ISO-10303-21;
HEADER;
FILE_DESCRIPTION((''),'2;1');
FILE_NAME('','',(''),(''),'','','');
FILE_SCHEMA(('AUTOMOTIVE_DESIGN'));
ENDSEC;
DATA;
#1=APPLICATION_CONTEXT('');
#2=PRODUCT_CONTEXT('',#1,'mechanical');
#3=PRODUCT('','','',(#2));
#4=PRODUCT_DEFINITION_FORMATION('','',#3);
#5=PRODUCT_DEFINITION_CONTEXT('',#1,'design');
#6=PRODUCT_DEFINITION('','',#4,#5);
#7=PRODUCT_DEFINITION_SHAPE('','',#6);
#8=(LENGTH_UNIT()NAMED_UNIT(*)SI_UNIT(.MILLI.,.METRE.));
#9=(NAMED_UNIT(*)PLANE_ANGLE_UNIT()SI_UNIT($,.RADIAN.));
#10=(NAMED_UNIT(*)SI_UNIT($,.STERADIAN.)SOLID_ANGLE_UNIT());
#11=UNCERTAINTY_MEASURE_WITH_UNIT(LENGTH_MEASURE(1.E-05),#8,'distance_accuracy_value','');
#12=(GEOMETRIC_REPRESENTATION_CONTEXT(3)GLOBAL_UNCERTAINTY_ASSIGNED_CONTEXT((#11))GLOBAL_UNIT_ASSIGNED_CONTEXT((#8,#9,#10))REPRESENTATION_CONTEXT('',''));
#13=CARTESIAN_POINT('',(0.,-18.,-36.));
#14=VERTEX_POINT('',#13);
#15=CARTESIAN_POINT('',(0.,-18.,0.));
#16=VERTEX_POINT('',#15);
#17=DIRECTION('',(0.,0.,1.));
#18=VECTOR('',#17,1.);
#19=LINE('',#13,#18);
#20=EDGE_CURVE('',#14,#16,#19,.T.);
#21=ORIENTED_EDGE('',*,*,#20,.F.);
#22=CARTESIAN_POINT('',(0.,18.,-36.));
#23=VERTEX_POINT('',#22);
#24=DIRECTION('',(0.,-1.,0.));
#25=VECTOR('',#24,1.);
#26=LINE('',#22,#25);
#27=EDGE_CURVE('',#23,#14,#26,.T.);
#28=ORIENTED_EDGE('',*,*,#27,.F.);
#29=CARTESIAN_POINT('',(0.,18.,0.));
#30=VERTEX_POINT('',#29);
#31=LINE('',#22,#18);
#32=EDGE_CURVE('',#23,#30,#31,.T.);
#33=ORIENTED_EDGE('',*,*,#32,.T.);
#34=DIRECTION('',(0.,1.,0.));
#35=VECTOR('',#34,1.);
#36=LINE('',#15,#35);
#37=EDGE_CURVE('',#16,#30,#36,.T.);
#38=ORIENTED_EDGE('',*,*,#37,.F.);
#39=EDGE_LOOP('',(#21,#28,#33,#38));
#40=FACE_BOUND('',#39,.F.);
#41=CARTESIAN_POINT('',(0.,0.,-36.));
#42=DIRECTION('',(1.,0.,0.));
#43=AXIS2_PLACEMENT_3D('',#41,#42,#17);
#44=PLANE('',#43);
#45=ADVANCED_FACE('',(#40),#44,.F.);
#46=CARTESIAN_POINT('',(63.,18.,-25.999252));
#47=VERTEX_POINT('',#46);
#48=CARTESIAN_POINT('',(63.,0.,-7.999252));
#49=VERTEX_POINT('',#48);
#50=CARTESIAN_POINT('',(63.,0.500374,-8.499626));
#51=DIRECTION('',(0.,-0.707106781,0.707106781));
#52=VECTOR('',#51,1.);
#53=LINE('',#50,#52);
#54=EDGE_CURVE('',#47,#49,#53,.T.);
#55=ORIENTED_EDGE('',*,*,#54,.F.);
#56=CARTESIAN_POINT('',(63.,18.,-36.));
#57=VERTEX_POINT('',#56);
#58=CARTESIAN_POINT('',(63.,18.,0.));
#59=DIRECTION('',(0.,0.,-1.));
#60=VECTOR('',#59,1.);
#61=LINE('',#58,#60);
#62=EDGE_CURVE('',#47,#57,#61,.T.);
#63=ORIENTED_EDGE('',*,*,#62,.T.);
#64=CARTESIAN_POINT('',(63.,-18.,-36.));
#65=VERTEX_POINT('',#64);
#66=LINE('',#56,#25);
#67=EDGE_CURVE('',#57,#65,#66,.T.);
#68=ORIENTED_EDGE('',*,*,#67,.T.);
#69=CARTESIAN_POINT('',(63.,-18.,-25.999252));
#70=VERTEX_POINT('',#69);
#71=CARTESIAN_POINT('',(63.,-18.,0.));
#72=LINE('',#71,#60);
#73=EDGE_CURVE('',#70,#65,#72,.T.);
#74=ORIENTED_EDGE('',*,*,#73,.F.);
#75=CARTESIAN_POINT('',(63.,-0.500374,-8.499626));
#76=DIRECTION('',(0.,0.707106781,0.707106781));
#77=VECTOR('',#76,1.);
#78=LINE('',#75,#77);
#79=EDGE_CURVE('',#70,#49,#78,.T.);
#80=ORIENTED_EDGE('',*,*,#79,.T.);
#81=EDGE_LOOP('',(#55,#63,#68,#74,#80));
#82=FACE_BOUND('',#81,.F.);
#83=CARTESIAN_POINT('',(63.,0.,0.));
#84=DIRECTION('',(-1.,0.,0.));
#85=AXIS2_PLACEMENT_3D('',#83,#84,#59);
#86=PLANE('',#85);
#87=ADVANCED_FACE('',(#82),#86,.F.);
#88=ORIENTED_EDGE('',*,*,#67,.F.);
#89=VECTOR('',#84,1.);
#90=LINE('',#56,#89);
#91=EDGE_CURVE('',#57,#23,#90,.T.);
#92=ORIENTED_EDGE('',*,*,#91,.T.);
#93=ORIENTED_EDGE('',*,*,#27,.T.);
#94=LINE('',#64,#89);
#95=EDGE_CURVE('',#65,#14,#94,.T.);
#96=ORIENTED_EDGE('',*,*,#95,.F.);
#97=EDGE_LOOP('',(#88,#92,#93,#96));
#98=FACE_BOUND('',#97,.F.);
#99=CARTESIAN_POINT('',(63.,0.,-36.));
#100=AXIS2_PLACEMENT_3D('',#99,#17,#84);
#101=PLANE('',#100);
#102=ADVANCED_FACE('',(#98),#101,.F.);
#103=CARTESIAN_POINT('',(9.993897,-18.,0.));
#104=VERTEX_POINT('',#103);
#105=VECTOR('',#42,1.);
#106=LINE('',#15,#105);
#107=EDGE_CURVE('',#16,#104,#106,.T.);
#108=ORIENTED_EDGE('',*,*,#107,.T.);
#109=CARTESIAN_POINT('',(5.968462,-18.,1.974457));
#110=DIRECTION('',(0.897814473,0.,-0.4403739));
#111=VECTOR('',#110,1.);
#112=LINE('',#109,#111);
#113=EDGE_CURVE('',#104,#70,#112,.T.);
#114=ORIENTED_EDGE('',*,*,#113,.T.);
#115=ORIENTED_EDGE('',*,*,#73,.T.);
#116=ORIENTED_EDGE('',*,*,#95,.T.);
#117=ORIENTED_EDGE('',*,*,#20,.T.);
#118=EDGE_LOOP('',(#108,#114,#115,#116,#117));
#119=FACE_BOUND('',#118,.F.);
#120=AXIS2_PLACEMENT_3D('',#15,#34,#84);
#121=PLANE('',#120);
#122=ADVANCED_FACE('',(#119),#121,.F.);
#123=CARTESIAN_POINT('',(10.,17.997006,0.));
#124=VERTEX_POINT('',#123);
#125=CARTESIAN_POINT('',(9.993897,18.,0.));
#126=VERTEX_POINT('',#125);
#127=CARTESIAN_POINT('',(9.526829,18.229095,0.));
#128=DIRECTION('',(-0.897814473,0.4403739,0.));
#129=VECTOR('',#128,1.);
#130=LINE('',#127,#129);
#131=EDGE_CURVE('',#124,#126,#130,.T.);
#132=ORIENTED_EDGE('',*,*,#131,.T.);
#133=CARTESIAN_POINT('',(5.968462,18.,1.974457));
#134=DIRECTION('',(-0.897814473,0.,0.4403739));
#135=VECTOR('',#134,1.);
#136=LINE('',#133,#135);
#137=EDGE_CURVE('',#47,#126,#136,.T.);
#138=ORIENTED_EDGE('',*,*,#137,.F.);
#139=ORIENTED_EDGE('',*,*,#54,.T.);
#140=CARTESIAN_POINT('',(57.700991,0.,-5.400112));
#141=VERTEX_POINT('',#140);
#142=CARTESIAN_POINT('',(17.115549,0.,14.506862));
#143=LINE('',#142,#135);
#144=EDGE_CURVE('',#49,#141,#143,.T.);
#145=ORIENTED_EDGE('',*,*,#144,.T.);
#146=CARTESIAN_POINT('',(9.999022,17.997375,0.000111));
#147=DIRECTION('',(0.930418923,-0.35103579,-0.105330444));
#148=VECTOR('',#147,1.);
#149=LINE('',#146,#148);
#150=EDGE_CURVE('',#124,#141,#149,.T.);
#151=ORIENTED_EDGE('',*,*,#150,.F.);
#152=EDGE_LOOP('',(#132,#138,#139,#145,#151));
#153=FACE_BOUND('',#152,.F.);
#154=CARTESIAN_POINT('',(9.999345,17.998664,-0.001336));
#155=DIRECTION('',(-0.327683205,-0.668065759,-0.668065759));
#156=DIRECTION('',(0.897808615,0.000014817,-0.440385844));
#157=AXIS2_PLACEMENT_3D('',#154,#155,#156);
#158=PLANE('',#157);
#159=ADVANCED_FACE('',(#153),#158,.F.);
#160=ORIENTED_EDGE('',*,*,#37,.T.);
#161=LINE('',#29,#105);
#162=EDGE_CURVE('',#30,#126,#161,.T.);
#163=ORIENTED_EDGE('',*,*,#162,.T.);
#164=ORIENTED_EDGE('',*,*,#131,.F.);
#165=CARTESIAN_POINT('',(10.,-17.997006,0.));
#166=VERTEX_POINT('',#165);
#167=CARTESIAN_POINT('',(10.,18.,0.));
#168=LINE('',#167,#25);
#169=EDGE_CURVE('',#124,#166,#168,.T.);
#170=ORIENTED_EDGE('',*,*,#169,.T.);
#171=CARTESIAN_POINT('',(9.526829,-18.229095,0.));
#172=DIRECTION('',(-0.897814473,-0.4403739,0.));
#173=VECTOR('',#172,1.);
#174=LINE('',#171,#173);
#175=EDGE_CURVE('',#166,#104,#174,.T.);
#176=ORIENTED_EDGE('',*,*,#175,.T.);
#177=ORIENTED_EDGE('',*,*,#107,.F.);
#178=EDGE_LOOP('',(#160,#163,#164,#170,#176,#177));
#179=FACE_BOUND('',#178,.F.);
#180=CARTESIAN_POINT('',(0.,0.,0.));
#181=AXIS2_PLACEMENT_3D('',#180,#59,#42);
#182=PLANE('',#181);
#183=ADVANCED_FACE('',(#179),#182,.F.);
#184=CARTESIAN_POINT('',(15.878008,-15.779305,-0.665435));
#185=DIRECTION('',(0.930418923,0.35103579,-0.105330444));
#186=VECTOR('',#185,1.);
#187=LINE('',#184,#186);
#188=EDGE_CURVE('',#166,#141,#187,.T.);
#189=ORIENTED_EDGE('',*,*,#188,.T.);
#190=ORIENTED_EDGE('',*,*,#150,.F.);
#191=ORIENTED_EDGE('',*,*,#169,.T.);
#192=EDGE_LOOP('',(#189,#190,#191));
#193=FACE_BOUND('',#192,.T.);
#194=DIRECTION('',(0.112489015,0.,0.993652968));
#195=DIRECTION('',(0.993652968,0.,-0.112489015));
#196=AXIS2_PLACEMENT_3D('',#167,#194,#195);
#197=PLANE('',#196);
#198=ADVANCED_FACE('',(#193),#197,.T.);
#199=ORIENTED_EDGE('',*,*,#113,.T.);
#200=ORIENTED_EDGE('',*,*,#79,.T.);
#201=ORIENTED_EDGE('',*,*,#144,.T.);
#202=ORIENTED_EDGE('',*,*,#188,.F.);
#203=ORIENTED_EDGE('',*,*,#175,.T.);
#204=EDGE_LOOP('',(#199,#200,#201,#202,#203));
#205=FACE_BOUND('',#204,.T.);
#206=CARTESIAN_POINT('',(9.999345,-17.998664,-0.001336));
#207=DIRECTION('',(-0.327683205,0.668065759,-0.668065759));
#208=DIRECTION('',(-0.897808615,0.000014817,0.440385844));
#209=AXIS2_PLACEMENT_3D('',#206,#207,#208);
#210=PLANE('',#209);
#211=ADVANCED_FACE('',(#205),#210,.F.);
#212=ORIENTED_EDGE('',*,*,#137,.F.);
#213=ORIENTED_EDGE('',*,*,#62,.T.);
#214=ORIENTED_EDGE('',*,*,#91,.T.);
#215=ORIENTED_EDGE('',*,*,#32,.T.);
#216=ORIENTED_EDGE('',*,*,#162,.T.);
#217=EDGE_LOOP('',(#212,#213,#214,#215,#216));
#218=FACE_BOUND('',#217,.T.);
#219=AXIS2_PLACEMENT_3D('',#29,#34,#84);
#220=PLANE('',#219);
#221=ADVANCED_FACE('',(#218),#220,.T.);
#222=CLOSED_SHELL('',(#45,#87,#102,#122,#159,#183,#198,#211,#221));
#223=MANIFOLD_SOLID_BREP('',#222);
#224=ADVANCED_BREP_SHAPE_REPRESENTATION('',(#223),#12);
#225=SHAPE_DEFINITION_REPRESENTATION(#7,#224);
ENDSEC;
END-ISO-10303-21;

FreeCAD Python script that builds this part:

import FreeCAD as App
import Part
import Sketcher
from FreeCAD import Vector

doc = App.newDocument("Part")
body = doc.addObject("PartDesign::Body", "Body")

# Sketch on XZ plane
sketch1 = doc.addObject("Sketcher::SketchObject", "Sketch")
body.addObject(sketch1)
sketch1.AttachmentSupport = (doc.XZ_Plane, [""])
sketch1.MapMode = "FlatFace"
sketch1.addGeometry([
    Part.LineSegment(Vector(0, -36, 0), Vector(0, 0, 0)),
    Part.LineSegment(Vector(0, 0, 0), Vector(63, 0, 0)),
    Part.LineSegment(Vector(63, 0, 0), Vector(63, -36, 0)),
    Part.LineSegment(Vector(63, -36, 0), Vector(0, -36, 0)),
], False)
sketch1.addConstraint([
    Sketcher.Constraint("Coincident", 0, 2, 1, 1),
    Sketcher.Constraint("Coincident", 1, 2, 2, 1),
    Sketcher.Constraint("Coincident", 2, 2, 3, 1),
    Sketcher.Constraint("Coincident", 3, 2, 0, 1),
    Sketcher.Constraint("Vertical", 0),
    Sketcher.Constraint("Horizontal", 1),
    Sketcher.Constraint("Vertical", 2),
    Sketcher.Constraint("Horizontal", 3),
    Sketcher.Constraint("Coincident", 0, 2, -1, 1),
    Sketcher.Constraint("DistanceX", 1, 1, 1, 2, 63.0),
    Sketcher.Constraint("DistanceY", 0, 1, 0, 2, 36.0),
])
pad1 = doc.addObject("PartDesign::Pad", "Pad")
body.addObject(pad1)
pad1.Profile = sketch1
pad1.Length = 36
pad1.Midplane = True

# Sketch on XZ plane
sketch2 = doc.addObject("Sketcher::SketchObject", "Sketch001")
body.addObject(sketch2)
sketch2.AttachmentSupport = (doc.XZ_Plane, [""])
sketch2.MapMode = "FlatFace"
sketch2.AttachmentOffset = App.Placement(Vector(0, 0, -18), App.Rotation())
sketch2.addGeometry([
    Part.LineSegment(Vector(63, -6, 0), Vector(10, 0, 0)),
    Part.LineSegment(Vector(10, 0, 0), Vector(63, 0, 0)),
    Part.LineSegment(Vector(63, 0, 0), Vector(63, -6, 0)),
], False)
sketch2.addConstraint([
    Sketcher.Constraint("Coincident", 0, 2, 1, 1),
    Sketcher.Constraint("Coincident", 1, 2, 2, 1),
    Sketcher.Constraint("Coincident", 2, 2, 0, 1),
    Sketcher.Constraint("Horizontal", 1),
    Sketcher.Constraint("Vertical", 2),
    Sketcher.Constraint("PointOnObject", 0, 2, -1),
    Sketcher.Constraint("DistanceX", -1, 1, 0, 2, 10.0),
    Sketcher.Constraint("DistanceX", 1, 1, 1, 2, 53.0),
    Sketcher.Constraint("DistanceY", 2, 2, 2, 1, 6.0),
])
pocket1 = doc.addObject("PartDesign::Pocket", "Pocket")
body.addObject(pocket1)
pocket1.Profile = sketch2
pocket1.Length = 40
pocket1.Reversed = True

# Sketch on an angled plane
sketch3 = doc.addObject("Sketcher::SketchObject", "Sketch002")
body.addObject(sketch3)
sketch3.Placement = App.Placement(Vector(10, 18, 0), App.Rotation(Vector(0.897808615, 0.000014817, -0.440385844), Vector(0.294216602, -0.744102239, 0.599790339), Vector(-0.327683205, -0.668065759, -0.668065759), "ZXY"))
sketch3.addGeometry([
    Part.LineSegment(Vector(-15.1543, 28.8166, 0), Vector(-15.1543, -12.3218, 0)),
    Part.LineSegment(Vector(-15.1543, -12.3218, 0), Vector(93.717, -12.3218, 0)),
    Part.LineSegment(Vector(93.717, -12.3218, 0), Vector(93.717, 28.8166, 0)),
    Part.LineSegment(Vector(93.717, 28.8166, 0), Vector(-15.1543, 28.8166, 0)),
], False)
sketch3.addConstraint([
    Sketcher.Constraint("Coincident", 0, 2, 1, 1),
    Sketcher.Constraint("Coincident", 1, 2, 2, 1),
    Sketcher.Constraint("Coincident", 2, 2, 3, 1),
    Sketcher.Constraint("Coincident", 3, 2, 0, 1),
    Sketcher.Constraint("Vertical", 0),
    Sketcher.Constraint("Horizontal", 1),
    Sketcher.Constraint("Vertical", 2),
    Sketcher.Constraint("Horizontal", 3),
    Sketcher.Constraint("DistanceX", 1, 1, 1, 2, 108.8713),
    Sketcher.Constraint("DistanceY", 0, 2, 0, 1, 41.1384),
    Sketcher.Constraint("DistanceX", -1, 1, 1, 2, 93.717),
    Sketcher.Constraint("DistanceY", 0, 2, -1, 1, 12.3218),
])
pocket2 = doc.addObject("PartDesign::Pocket", "Pocket001")
body.addObject(pocket2)
pocket2.Profile = sketch3
pocket2.Length = 40
doc.recompute()

mirrored = doc.addObject("PartDesign::Mirrored", "Mirrored")
body.addObject(mirrored)
mirrored.Originals = [pocket2]
mirrored.MirrorPlane = (doc.XZ_Plane, [""])
body.Tip = mirrored

doc.recompute()
